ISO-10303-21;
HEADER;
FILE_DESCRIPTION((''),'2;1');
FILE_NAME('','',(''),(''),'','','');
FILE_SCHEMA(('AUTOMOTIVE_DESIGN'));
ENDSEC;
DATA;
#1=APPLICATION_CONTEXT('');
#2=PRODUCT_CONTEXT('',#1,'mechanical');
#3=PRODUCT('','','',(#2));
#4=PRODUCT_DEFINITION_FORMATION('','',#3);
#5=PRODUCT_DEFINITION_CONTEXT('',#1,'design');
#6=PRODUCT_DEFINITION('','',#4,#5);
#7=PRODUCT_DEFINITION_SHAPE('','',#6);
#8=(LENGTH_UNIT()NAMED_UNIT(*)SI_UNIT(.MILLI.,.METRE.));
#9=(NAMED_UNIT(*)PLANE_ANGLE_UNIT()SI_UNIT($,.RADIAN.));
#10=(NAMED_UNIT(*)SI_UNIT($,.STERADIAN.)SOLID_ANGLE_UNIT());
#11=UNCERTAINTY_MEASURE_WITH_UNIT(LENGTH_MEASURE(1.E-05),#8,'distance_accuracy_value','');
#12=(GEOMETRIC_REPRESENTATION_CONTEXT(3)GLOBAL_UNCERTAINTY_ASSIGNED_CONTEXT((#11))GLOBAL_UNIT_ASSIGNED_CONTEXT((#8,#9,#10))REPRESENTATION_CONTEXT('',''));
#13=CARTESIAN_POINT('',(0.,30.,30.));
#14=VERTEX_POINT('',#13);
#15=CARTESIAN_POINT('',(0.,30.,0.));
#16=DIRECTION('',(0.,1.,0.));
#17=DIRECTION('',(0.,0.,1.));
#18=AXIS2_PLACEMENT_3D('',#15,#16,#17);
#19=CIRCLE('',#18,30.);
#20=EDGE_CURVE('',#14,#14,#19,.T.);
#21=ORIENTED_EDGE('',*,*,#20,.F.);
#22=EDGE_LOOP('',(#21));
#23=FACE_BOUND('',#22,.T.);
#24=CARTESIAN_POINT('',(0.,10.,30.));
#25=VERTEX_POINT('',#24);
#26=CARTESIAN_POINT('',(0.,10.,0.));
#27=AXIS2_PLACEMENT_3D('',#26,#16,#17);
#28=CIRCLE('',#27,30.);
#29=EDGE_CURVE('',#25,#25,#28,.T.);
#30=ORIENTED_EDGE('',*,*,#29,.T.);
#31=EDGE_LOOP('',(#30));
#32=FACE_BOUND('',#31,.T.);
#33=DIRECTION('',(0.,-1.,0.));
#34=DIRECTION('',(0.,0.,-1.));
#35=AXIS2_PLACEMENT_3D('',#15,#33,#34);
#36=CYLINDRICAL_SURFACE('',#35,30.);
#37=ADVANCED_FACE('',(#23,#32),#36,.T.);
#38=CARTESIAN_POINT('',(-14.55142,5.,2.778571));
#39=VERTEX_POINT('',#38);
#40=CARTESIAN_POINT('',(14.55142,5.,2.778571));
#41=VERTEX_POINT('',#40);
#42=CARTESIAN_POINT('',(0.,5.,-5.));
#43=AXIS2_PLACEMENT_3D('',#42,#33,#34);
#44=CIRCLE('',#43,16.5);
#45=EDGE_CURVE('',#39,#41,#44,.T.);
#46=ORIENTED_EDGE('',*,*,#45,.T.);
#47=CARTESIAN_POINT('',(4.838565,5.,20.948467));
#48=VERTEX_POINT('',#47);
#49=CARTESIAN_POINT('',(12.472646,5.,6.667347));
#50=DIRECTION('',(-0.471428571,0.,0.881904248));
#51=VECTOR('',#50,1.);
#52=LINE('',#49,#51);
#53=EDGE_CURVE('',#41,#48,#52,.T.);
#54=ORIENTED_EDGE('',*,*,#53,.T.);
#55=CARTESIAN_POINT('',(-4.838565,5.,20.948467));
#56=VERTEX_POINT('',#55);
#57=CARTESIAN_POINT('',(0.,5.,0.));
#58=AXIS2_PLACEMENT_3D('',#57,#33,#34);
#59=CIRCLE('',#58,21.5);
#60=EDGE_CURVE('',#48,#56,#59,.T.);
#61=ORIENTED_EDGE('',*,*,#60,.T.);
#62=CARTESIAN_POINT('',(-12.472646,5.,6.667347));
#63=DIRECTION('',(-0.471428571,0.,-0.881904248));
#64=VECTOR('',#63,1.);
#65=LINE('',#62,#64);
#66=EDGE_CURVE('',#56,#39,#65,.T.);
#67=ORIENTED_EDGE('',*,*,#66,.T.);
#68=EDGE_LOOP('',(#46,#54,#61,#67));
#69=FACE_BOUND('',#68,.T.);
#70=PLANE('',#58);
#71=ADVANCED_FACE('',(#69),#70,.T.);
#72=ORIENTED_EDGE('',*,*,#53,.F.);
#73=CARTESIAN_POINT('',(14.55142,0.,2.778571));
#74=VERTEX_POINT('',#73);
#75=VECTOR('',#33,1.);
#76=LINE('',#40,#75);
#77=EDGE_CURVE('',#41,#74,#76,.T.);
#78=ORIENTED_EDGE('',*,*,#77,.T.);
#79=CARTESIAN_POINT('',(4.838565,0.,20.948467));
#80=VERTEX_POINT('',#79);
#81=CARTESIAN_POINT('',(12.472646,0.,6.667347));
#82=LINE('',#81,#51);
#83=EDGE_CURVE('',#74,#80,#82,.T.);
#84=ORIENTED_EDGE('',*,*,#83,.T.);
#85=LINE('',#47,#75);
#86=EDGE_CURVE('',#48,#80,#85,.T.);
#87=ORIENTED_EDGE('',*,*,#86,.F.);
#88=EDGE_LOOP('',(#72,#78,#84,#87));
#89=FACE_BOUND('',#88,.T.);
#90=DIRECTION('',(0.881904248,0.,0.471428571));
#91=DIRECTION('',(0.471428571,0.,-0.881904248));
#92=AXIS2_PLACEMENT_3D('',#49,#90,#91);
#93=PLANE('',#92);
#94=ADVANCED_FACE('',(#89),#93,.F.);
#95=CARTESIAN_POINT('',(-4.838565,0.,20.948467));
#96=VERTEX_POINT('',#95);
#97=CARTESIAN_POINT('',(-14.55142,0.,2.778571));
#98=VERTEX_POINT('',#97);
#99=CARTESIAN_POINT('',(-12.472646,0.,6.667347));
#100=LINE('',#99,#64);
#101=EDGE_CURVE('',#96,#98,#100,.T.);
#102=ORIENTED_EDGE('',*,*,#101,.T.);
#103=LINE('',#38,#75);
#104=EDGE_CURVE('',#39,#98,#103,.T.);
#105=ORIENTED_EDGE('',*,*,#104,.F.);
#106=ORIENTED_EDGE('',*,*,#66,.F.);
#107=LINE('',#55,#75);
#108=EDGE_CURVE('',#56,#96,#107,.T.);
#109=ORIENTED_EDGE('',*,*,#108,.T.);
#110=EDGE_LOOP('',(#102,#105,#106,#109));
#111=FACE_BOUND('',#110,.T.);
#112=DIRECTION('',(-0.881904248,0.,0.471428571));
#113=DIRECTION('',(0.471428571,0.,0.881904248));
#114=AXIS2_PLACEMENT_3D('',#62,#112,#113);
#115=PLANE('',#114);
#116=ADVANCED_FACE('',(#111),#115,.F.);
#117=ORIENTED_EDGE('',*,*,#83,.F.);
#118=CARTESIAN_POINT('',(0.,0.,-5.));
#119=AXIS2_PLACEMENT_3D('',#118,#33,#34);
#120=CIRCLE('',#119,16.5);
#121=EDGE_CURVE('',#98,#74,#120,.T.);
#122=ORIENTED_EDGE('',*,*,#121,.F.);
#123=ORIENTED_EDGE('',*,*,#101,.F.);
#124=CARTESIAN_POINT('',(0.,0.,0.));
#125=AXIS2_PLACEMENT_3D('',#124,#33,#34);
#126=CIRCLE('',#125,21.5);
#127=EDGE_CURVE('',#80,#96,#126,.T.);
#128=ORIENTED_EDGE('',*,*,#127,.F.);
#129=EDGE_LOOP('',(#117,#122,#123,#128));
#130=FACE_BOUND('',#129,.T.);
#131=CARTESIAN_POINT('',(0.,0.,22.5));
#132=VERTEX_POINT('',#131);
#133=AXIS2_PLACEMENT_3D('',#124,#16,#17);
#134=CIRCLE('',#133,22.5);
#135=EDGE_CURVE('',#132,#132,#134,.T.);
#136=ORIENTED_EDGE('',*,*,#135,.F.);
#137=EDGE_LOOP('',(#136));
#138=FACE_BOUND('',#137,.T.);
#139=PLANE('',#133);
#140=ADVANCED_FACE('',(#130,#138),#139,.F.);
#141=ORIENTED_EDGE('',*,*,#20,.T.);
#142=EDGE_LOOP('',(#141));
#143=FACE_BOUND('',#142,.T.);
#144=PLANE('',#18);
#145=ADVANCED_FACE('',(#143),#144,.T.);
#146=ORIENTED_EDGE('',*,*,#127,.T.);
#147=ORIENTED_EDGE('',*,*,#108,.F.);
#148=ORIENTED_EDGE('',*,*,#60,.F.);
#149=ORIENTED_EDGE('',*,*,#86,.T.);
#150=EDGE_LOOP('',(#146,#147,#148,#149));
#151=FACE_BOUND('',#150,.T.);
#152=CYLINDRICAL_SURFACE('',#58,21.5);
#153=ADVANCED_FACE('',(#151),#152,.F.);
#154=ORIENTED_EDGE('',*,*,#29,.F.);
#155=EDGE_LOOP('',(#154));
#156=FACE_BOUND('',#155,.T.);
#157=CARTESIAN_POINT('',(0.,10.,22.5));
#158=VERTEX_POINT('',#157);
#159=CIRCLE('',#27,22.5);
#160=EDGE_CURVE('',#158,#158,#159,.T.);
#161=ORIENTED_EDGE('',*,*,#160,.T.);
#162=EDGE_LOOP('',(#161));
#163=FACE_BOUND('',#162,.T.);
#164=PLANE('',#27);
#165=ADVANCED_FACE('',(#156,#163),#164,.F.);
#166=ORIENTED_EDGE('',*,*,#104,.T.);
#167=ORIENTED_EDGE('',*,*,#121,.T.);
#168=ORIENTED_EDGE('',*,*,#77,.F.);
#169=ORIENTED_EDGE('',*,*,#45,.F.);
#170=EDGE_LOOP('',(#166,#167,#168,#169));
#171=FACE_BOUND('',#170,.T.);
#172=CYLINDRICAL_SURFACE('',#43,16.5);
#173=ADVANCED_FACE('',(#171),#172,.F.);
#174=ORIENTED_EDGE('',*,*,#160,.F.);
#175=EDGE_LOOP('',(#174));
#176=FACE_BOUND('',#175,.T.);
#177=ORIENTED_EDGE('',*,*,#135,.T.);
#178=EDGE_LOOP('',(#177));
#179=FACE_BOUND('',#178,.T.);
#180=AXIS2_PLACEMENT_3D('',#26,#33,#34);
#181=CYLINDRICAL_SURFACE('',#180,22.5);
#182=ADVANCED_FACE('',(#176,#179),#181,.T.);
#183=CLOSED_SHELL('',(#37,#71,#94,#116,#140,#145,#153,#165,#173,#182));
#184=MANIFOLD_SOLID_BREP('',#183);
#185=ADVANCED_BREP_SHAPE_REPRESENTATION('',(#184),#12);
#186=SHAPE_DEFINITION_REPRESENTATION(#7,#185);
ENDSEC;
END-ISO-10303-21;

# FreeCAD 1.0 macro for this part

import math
import FreeCAD as App
import Part
import Sketcher
from FreeCAD import Vector

doc = App.newDocument("Part")
body = doc.addObject("PartDesign::Body", "Body")

sketch1 = body.newObject("Sketcher::SketchObject", "Sketch")
sketch1.AttachmentSupport = (doc.getObject("XZ_Plane"), [""])
sketch1.MapMode = "FlatFace"
sketch1.addGeometry(Part.Circle(Vector(0, 0, 0), Vector(0, 0, 1), 22.5), False)
sketch1.addConstraint([
    Sketcher.Constraint("Coincident", 0, 3, -1, 1),
    Sketcher.Constraint("Diameter", 0, 45.0),
])
pad1 = body.newObject("PartDesign::Pad", "Pad")
pad1.Profile = sketch1
pad1.Length = 10
pad1.Reversed = True

sketch2 = body.newObject("Sketcher::SketchObject", "Sketch001")
sketch2.AttachmentSupport = (doc.getObject("XZ_Plane"), [""])
sketch2.MapMode = "FlatFace"
sketch2.AttachmentOffset = App.Placement(Vector(0, 0, -10), App.Rotation())
sketch2.addGeometry(Part.Circle(Vector(0, 0, 0), Vector(0, 0, 1), 30), False)
sketch2.addConstraint([
    Sketcher.Constraint("Coincident", 0, 3, -1, 1),
    Sketcher.Constraint("Diameter", 0, 60.0),
])
pad2 = body.newObject("PartDesign::Pad", "Pad001")
pad2.Profile = sketch2
pad2.Length = 20
pad2.Reversed = True

sketch3 = body.newObject("Sketcher::SketchObject", "Sketch002")
sketch3.AttachmentSupport = (doc.getObject("XZ_Plane"), [""])
sketch3.MapMode = "FlatFace"
sketch3.addGeometry([
    Part.LineSegment(Vector(14.55142, 2.778571, 0), Vector(4.838565, 20.948467, 0)),
    Part.ArcOfCircle(Part.Circle(Vector(0, 0, 0), Vector(0, 0, 1), 21.5), math.radians(76.994209), math.radians(103.005791)),
    Part.LineSegment(Vector(-4.838565, 20.948467, 0), Vector(-14.55142, 2.778571, 0)),
    Part.ArcOfCircle(Part.Circle(Vector(0, -5, 0), Vector(0, 0, 1), 16.5), math.radians(151.872932), math.radians(388.127068)),
], False)
sketch3.addConstraint([
    Sketcher.Constraint("Coincident", 0, 2, 1, 1),
    Sketcher.Constraint("Coincident", 1, 2, 2, 1),
    Sketcher.Constraint("Tangent", 2, 2, 3, 1),
    Sketcher.Constraint("Tangent", 3, 2, 0, 1),
    Sketcher.Constraint("Coincident", 1, 3, -1, 1),
    Sketcher.Constraint("Symmetric", 2, 2, 3, 2, -2),
    Sketcher.Constraint("Radius", 1, 21.5),
    Sketcher.Constraint("Radius", 3, 16.5),
    Sketcher.Constraint("DistanceY", 3, 3, -1, 1, 5.0),
    Sketcher.Constraint("DistanceX", 2, 2, -1, 1, 14.55142),
])
pocket1 = body.newObject("PartDesign::Pocket", "Pocket")
pocket1.Profile = sketch3
pocket1.Length = 5

doc.recompute()
